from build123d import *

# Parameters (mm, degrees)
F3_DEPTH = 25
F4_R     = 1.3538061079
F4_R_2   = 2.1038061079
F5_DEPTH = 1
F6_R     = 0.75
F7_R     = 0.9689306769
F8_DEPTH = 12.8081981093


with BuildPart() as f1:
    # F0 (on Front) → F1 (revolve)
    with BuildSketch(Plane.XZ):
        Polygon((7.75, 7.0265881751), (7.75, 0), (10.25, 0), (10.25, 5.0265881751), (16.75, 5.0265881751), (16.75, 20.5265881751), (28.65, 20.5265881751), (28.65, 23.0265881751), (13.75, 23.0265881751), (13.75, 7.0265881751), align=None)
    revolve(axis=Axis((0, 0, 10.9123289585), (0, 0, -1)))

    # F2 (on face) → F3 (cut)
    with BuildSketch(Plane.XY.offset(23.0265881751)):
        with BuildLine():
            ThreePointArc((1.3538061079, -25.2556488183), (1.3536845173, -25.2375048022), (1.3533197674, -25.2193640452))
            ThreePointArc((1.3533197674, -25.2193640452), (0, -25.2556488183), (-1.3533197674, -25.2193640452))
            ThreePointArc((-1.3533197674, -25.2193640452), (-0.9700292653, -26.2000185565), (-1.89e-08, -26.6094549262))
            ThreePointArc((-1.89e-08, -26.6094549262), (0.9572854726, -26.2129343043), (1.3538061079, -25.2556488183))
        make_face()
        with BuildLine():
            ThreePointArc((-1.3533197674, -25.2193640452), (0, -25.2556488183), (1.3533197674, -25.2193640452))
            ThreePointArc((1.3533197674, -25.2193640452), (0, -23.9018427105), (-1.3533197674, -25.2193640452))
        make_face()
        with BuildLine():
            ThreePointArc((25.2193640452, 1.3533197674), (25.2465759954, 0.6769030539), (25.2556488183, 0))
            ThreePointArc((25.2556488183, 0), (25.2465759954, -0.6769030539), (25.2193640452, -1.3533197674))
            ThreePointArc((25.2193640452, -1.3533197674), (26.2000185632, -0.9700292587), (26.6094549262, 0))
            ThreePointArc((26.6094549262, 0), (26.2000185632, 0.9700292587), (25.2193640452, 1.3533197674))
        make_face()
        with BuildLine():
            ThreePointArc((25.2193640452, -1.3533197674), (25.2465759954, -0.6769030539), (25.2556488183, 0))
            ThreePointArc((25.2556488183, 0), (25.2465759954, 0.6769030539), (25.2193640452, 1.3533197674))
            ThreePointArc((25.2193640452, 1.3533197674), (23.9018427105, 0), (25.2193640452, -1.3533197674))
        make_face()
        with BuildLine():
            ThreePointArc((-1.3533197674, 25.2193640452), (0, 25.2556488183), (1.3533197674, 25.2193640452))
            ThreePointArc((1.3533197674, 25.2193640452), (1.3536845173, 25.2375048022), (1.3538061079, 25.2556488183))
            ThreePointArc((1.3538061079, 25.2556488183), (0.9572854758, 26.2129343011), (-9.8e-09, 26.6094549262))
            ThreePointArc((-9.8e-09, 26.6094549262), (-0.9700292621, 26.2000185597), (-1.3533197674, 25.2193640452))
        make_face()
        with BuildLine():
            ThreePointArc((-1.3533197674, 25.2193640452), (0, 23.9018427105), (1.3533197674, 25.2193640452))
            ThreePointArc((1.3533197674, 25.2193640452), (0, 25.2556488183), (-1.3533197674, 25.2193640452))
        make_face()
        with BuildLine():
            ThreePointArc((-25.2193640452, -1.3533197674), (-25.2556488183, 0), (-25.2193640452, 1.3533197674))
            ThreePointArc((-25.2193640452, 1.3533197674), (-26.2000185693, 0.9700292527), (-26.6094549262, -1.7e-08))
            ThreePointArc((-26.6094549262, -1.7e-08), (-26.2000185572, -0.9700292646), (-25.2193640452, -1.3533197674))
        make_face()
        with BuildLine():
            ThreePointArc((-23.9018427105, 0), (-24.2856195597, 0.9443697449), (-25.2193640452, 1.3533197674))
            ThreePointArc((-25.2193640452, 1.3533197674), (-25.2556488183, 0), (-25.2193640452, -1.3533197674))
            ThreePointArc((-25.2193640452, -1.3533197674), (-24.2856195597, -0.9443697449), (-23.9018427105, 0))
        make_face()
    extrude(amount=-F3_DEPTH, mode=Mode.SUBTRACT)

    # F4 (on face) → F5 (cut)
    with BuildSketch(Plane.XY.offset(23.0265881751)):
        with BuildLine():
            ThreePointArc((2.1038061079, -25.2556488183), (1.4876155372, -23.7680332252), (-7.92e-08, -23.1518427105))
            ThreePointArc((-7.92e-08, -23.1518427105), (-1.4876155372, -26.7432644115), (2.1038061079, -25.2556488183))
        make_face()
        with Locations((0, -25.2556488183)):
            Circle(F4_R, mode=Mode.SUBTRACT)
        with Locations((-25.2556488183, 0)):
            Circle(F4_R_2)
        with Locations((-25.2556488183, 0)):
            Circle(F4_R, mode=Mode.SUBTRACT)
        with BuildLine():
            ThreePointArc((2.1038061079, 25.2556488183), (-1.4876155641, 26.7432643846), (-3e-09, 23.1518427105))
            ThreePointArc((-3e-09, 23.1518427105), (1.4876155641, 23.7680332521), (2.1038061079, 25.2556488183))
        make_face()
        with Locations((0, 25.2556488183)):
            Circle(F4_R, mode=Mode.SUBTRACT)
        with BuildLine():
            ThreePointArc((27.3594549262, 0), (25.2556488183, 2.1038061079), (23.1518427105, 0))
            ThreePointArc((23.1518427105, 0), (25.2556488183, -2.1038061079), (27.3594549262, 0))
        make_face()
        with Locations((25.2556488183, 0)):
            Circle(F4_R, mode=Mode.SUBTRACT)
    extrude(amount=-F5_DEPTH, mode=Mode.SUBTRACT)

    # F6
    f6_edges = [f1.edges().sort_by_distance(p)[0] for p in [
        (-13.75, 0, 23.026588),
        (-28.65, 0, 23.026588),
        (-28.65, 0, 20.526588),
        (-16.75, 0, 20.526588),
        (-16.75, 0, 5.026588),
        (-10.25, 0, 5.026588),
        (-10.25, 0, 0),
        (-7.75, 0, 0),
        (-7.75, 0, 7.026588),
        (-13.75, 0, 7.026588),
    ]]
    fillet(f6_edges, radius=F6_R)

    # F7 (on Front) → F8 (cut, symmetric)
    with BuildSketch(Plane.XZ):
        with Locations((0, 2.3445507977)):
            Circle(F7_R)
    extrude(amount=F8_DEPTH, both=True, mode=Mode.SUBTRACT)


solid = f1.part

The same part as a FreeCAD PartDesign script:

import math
import FreeCAD as App
import Part
import Sketcher

V = App.Vector
Q = App.Units.Quantity


def edges_at(feature, points):
    """Names of the edges that pass closest to the given points."""
    edges = feature.Shape.Edges
    near = lambda p: min(range(len(edges)), key=lambda i: edges[i].distToShape(Part.Vertex(*p))[0])
    return sorted({f"Edge{near(p) + 1}" for p in points})


def add_polygon(sketch, points):
    """Adds a closed chain of lines whose ends are joined by coincident constraints."""
    first, n = sketch.GeometryCount, len(points)
    for a, b in zip(points, points[1:] + points[:1]):
        sketch.addGeometry(Part.LineSegment(App.Vector(*a, 0), App.Vector(*b, 0)), False)
    for i in range(n):
        sketch.addConstraint(Sketcher.Constraint("Coincident", first + i, 2, first + (i + 1) % n, 1))

doc = App.newDocument("Part")
body = doc.addObject("PartDesign::Body", "Body")

# Sketch on XZ plane
sketch1 = doc.addObject("Sketcher::SketchObject", "Sketch")
body.addObject(sketch1)
sketch1.AttachmentSupport = (doc.XZ_Plane, [""])
sketch1.MapMode = "FlatFace"
add_polygon(sketch1, [(7.75, 7.026588), (7.75, 0), (10.25, 0), (10.25, 5.026588), (16.75, 5.026588), (16.75, 20.526588), (28.65, 20.526588), (28.65, 23.026588), (13.75, 23.026588), (13.75, 7.026588)])  # lines 0-9
sketch1.addConstraint([
    Sketcher.Constraint("Vertical", 0),
    Sketcher.Constraint("Horizontal", 1),
    Sketcher.Constraint("Vertical", 2),
    Sketcher.Constraint("Horizontal", 3),
    Sketcher.Constraint("Vertical", 4),
    Sketcher.Constraint("Horizontal", 5),
    Sketcher.Constraint("Vertical", 6),
    Sketcher.Constraint("Horizontal", 7),
    Sketcher.Constraint("Vertical", 8),
    Sketcher.Constraint("Horizontal", 9),
    Sketcher.Constraint("PointOnObject", 0, 2, -1),
    Sketcher.Constraint("Equal", 1, 6),
    Sketcher.Constraint("DistanceX", 9, 2, 9, 1, Q("6 mm")),
    Sketcher.Constraint("DistanceY", 8, 2, 8, 1, Q("16 mm")),
    Sketcher.Constraint("DistanceX", 1, 1, 1, 2, Q("2.5 mm")),
    Sketcher.Constraint("DistanceX", 3, 1, 3, 2, Q("6.5 mm")),
    Sketcher.Constraint("DistanceX", 5, 1, 5, 2, Q("11.9 mm")),
    Sketcher.Constraint("DistanceY", 4, 1, 4, 2, Q("15.5 mm")),
    Sketcher.Constraint("DistanceX", -1, 1, 0, 2, Q("7.75 mm")),
    Sketcher.Constraint("DistanceY", 0, 2, 0, 1, Q("7.026588 mm")),
])
revolution = doc.addObject("PartDesign::Revolution", "Revolution")
body.addObject(revolution)
revolution.Profile = sketch1
revolution.ReferenceAxis = (sketch1, ["V_Axis"])
revolution.Angle = 360

# Sketch on XY plane
sketch2 = doc.addObject("Sketcher::SketchObject", "Sketch001")
body.addObject(sketch2)
sketch2.AttachmentSupport = (doc.XY_Plane, [""])
sketch2.MapMode = "FlatFace"
sketch2.AttachmentOffset = App.Placement(V(0, 0, 23.026588), App.Rotation())
sketch2.addGeometry([
    Part.ArcOfCircle(Part.Circle(V(0, -25.255649, 0), V(0, 0, 1), 1.353806), math.radians(0), math.radians(1.535828)),  # 0
    Part.ArcOfCircle(Part.Circle(V(0, -25.255649, 0), V(0, 0, 1), 1.353806), math.radians(1.535828), math.radians(178.464172)),  # 1
    Part.ArcOfCircle(Part.Circle(V(0, -25.255649, 0), V(0, 0, 1), 1.353806), math.radians(178.464172), math.radians(269.999999)),  # 2
    Part.ArcOfCircle(Part.Circle(V(0, -25.255649, 0), V(0, 0, 1), 1.353806), math.radians(-90.000001), math.radians(0)),  # 3
    Part.ArcOfCircle(Part.Circle(V(25.255649, 0, 0), V(0, 0, 1), 1.353806), math.radians(-91.535828), math.radians(0)),  # 4
    Part.ArcOfCircle(Part.Circle(V(25.255649, 0, 0), V(0, 0, 1), 1.353806), math.radians(0), math.radians(91.535828)),  # 5
    Part.ArcOfCircle(Part.Circle(V(25.255649, 0, 0), V(0, 0, 1), 1.353806), math.radians(91.535828), math.radians(268.464172)),  # 6
    Part.ArcOfCircle(Part.Circle(V(0, 25.255649, 0), V(0, 0, 1), 1.353806), math.radians(-1.535828), math.radians(0)),  # 7
    Part.ArcOfCircle(Part.Circle(V(0, 25.255649, 0), V(0, 0, 1), 1.353806), math.radians(0), math.radians(90)),  # 8
    Part.ArcOfCircle(Part.Circle(V(0, 25.255649, 0), V(0, 0, 1), 1.353806), math.radians(90), math.radians(181.535828)),  # 9
    Part.ArcOfCircle(Part.Circle(V(0, 25.255649, 0), V(0, 0, 1), 1.353806), math.radians(-178.464172), math.radians(-1.535828)),  # 10
    Part.ArcOfCircle(Part.Circle(V(-25.255649, 0, 0), V(0, 0, 1), 1.353806), math.radians(88.464172), math.radians(180.000001)),  # 11
    Part.ArcOfCircle(Part.Circle(V(-25.255649, 0, 0), V(0, 0, 1), 1.353806), math.radians(-179.999999), math.radians(-88.464172)),  # 12
    Part.ArcOfCircle(Part.Circle(V(-25.255649, 0, 0), V(0, 0, 1), 1.353806), math.radians(-88.464172), math.radians(0)),  # 13
    Part.ArcOfCircle(Part.Circle(V(-25.255649, 0, 0), V(0, 0, 1), 1.353806), math.radians(0), math.radians(88.464172)),  # 14
], False)
sketch2.addConstraint([
    Sketcher.Constraint("Tangent", 0, 2, 1, 1),
    Sketcher.Constraint("Tangent", 1, 2, 2, 1),
    Sketcher.Constraint("Tangent", 2, 2, 3, 1),
    Sketcher.Constraint("Tangent", 3, 2, 0, 1),
    Sketcher.Constraint("Tangent", 4, 2, 5, 1),
    Sketcher.Constraint("Tangent", 5, 2, 6, 1),
    Sketcher.Constraint("Tangent", 6, 2, 4, 1),
    Sketcher.Constraint("Tangent", 7, 2, 8, 1),
    Sketcher.Constraint("Tangent", 8, 2, 9, 1),
    Sketcher.Constraint("Tangent", 9, 2, 10, 1),
    Sketcher.Constraint("Tangent", 10, 2, 7, 1),
    Sketcher.Constraint("Tangent", 11, 2, 12, 1),
    Sketcher.Constraint("Tangent", 12, 2, 13, 1),
    Sketcher.Constraint("Tangent", 13, 2, 14, 1),
    Sketcher.Constraint("Tangent", 14, 2, 11, 1),
    Sketcher.Constraint("Equal", 0, 1),
    Sketcher.Constraint("Equal", 3, 4),
    Sketcher.Constraint("Equal", 6, 7),
    Sketcher.Constraint("Equal", 7, 8),
    Sketcher.Constraint("Equal", 10, 11),
    Sketcher.Constraint("Equal", 11, 12),
    Sketcher.Constraint("Symmetric", 0, 3, 7, 3, -1, 1),
    Sketcher.Constraint("Symmetric", 4, 3, 11, 3, -1, 1),
    Sketcher.Constraint("Symmetric", 0, 2, 1, 2, -2),
    Sketcher.Constraint("Symmetric", 6, 2, 12, 2, -2),
    Sketcher.Constraint("PointOnObject", 2, 2, -2),
    Sketcher.Constraint("PointOnObject", 4, 2, -1),
    Sketcher.Constraint("PointOnObject", 8, 2, -2),
    Sketcher.Constraint("PointOnObject", 11, 2, -1),
    Sketcher.Constraint("PointOnObject", 13, 2, -1),
    Sketcher.Constraint("Horizontal", 2, 3, 3, 2),
    Sketcher.Constraint("Horizontal", 10, 3, 7, 2),
    Sketcher.Constraint("Horizontal", 9, 2, 10, 2),
    Sketcher.Constraint("Horizontal", 5, 2, 14, 2),
    Sketcher.Constraint("Vertical", 5, 2, 6, 2),
    Sketcher.Constraint("Vertical", 1, 2, 9, 2),
    Sketcher.Constraint("Radius", 0, Q("1.353806 mm")),
    Sketcher.Constraint("DistanceY", 0, 3, -1, 1, Q("25.255649 mm")),
    Sketcher.Constraint("DistanceX", -1, 1, 4, 3, Q("25.255649 mm")),
    Sketcher.Constraint("DistanceX", -1, 1, 0, 2, Q("1.35332 mm")),
    Sketcher.Constraint("DistanceY", -1, 1, 5, 2, Q("1.35332 mm")),
])
pocket1 = doc.addObject("PartDesign::Pocket", "Pocket")
body.addObject(pocket1)
pocket1.Profile = sketch2
pocket1.Length = 25

# Sketch on XY plane
sketch3 = doc.addObject("Sketcher::SketchObject", "Sketch002")
body.addObject(sketch3)
sketch3.AttachmentSupport = (doc.XY_Plane, [""])
sketch3.MapMode = "FlatFace"
sketch3.AttachmentOffset = App.Placement(V(0, 0, 23.026588), App.Rotation())
sketch3.addGeometry([
    Part.ArcOfCircle(Part.Circle(V(0, -25.255649, 0), V(0, 0, 1), 2.103806), math.radians(0), math.radians(90.000002)),  # 0
    Part.ArcOfCircle(Part.Circle(V(0, -25.255649, 0), V(0, 0, 1), 2.103806), math.radians(90.000002), math.radians(360)),  # 1
    Part.Circle(V(0, -25.255649, 0), V(0, 0, 1), 1.353806),  # 2
    Part.Circle(V(-25.255649, 0, 0), V(0, 0, 1), 2.103806),  # 3
    Part.Circle(V(-25.255649, 0, 0), V(0, 0, 1), 1.353806),  # 4
    Part.ArcOfCircle(Part.Circle(V(0, 25.255649, 0), V(0, 0, 1), 2.103806), math.radians(0), math.radians(270)),  # 5
    Part.ArcOfCircle(Part.Circle(V(0, 25.255649, 0), V(0, 0, 1), 2.103806), math.radians(-90), math.radians(0)),  # 6
    Part.Circle(V(0, 25.255649, 0), V(0, 0, 1), 1.353806),  # 7
    Part.ArcOfCircle(Part.Circle(V(25.255649, 0, 0), V(0, 0, 1), 2.103806), math.radians(0), math.radians(180)),  # 8
    Part.ArcOfCircle(Part.Circle(V(25.255649, 0, 0), V(0, 0, 1), 2.103806), math.radians(180), math.radians(360)),  # 9
    Part.Circle(V(25.255649, 0, 0), V(0, 0, 1), 1.353806),  # 10
], False)
sketch3.addConstraint([
    Sketcher.Constraint("Tangent", 0, 1, 1, 2),
    Sketcher.Constraint("Coincident", 1, 1, 0, 2),
    Sketcher.Constraint("Tangent", 5, 1, 6, 2),
    Sketcher.Constraint("Coincident", 6, 1, 5, 2),
    Sketcher.Constraint("Tangent", 8, 1, 9, 2),
    Sketcher.Constraint("Coincident", 9, 1, 8, 2),
    Sketcher.Constraint("Coincident", 2, 3, 0, 3),
    Sketcher.Constraint("Coincident", 4, 3, 3, 3),
    Sketcher.Constraint("Coincident", 7, 3, 5, 3),
    Sketcher.Constraint("Coincident", 10, 3, 8, 3),
    Sketcher.Constraint("Equal", 1, 3),
    Sketcher.Constraint("Equal", 2, 4),
    Sketcher.Constraint("Equal", 3, 5),
    Sketcher.Constraint("Equal", 4, 7),
    Sketcher.Constraint("Equal", 6, 8),
    Sketcher.Constraint("Equal", 7, 10),
    Sketcher.Constraint("Symmetric", 0, 3, 5, 3, -1, 1),
    Sketcher.Constraint("Symmetric", 3, 3, 8, 3, -1, 1),
    Sketcher.Constraint("Symmetric", 0, 1, 5, 1, -1),
    Sketcher.Constraint("PointOnObject", 3, 3, -1),
    Sketcher.Constraint("PointOnObject", 1, 1, -2),
    Sketcher.Constraint("PointOnObject", 6, 1, -2),
    Sketcher.Constraint("PointOnObject", 8, 1, -1),
    Sketcher.Constraint("PointOnObject", 9, 1, -1),
    Sketcher.Constraint("Horizontal", 2, 3, 0, 1),
    Sketcher.Constraint("Diameter", 2, Q("2.707612 mm")),
    Sketcher.Constraint("Diameter", 3, Q("4.207612 mm")),
    Sketcher.Constraint("DistanceY", 0, 3, -1, 1, Q("25.255649 mm")),
    Sketcher.Constraint("DistanceX", 3, 3, -1, 1, Q("25.255649 mm")),
])
pocket2 = doc.addObject("PartDesign::Pocket", "Pocket001")
body.addObject(pocket2)
pocket2.Profile = sketch3
pocket2.Length = 1
doc.recompute()

fillet = doc.addObject("PartDesign::Fillet", "Fillet")
body.addObject(fillet)
fillet.Base = (pocket2, edges_at(pocket2, [
    (-13.75, 0, 23.027),
    (-28.65, 0, 23.027),
    (-28.65, 0, 20.527),
    (-16.75, 0, 20.527),
    (-16.75, 0, 5.027),
    (-10.25, 0, 5.027),
    (-10.25, 0, 0),
    (-7.75, 0, 0),
    (-7.75, 0, 7.027),
    (-13.75, 0, 7.027),
]))
fillet.Radius = 0.75

# Sketch on XZ plane
sketch4 = doc.addObject("Sketcher::SketchObject", "Sketch003")
body.addObject(sketch4)
sketch4.AttachmentSupport = (doc.XZ_Plane, [""])
sketch4.MapMode = "FlatFace"
sketch4.addGeometry(Part.Circle(V(0, 2.344551, 0), V(0, 0, 1), 0.968931), False)
sketch4.addConstraint([
    Sketcher.Constraint("PointOnObject", 0, 3, -2),
    Sketcher.Constraint("Diameter", 0, Q("1.937861 mm")),
    Sketcher.Constraint("DistanceY", -1, 1, 0, 3, Q("2.344551 mm")),
])
pocket3 = doc.addObject("PartDesign::Pocket", "Pocket002")
body.addObject(pocket3)
pocket3.Profile = sketch4
pocket3.Length = 25.616396
pocket3.Midplane = True

doc.recompute()
